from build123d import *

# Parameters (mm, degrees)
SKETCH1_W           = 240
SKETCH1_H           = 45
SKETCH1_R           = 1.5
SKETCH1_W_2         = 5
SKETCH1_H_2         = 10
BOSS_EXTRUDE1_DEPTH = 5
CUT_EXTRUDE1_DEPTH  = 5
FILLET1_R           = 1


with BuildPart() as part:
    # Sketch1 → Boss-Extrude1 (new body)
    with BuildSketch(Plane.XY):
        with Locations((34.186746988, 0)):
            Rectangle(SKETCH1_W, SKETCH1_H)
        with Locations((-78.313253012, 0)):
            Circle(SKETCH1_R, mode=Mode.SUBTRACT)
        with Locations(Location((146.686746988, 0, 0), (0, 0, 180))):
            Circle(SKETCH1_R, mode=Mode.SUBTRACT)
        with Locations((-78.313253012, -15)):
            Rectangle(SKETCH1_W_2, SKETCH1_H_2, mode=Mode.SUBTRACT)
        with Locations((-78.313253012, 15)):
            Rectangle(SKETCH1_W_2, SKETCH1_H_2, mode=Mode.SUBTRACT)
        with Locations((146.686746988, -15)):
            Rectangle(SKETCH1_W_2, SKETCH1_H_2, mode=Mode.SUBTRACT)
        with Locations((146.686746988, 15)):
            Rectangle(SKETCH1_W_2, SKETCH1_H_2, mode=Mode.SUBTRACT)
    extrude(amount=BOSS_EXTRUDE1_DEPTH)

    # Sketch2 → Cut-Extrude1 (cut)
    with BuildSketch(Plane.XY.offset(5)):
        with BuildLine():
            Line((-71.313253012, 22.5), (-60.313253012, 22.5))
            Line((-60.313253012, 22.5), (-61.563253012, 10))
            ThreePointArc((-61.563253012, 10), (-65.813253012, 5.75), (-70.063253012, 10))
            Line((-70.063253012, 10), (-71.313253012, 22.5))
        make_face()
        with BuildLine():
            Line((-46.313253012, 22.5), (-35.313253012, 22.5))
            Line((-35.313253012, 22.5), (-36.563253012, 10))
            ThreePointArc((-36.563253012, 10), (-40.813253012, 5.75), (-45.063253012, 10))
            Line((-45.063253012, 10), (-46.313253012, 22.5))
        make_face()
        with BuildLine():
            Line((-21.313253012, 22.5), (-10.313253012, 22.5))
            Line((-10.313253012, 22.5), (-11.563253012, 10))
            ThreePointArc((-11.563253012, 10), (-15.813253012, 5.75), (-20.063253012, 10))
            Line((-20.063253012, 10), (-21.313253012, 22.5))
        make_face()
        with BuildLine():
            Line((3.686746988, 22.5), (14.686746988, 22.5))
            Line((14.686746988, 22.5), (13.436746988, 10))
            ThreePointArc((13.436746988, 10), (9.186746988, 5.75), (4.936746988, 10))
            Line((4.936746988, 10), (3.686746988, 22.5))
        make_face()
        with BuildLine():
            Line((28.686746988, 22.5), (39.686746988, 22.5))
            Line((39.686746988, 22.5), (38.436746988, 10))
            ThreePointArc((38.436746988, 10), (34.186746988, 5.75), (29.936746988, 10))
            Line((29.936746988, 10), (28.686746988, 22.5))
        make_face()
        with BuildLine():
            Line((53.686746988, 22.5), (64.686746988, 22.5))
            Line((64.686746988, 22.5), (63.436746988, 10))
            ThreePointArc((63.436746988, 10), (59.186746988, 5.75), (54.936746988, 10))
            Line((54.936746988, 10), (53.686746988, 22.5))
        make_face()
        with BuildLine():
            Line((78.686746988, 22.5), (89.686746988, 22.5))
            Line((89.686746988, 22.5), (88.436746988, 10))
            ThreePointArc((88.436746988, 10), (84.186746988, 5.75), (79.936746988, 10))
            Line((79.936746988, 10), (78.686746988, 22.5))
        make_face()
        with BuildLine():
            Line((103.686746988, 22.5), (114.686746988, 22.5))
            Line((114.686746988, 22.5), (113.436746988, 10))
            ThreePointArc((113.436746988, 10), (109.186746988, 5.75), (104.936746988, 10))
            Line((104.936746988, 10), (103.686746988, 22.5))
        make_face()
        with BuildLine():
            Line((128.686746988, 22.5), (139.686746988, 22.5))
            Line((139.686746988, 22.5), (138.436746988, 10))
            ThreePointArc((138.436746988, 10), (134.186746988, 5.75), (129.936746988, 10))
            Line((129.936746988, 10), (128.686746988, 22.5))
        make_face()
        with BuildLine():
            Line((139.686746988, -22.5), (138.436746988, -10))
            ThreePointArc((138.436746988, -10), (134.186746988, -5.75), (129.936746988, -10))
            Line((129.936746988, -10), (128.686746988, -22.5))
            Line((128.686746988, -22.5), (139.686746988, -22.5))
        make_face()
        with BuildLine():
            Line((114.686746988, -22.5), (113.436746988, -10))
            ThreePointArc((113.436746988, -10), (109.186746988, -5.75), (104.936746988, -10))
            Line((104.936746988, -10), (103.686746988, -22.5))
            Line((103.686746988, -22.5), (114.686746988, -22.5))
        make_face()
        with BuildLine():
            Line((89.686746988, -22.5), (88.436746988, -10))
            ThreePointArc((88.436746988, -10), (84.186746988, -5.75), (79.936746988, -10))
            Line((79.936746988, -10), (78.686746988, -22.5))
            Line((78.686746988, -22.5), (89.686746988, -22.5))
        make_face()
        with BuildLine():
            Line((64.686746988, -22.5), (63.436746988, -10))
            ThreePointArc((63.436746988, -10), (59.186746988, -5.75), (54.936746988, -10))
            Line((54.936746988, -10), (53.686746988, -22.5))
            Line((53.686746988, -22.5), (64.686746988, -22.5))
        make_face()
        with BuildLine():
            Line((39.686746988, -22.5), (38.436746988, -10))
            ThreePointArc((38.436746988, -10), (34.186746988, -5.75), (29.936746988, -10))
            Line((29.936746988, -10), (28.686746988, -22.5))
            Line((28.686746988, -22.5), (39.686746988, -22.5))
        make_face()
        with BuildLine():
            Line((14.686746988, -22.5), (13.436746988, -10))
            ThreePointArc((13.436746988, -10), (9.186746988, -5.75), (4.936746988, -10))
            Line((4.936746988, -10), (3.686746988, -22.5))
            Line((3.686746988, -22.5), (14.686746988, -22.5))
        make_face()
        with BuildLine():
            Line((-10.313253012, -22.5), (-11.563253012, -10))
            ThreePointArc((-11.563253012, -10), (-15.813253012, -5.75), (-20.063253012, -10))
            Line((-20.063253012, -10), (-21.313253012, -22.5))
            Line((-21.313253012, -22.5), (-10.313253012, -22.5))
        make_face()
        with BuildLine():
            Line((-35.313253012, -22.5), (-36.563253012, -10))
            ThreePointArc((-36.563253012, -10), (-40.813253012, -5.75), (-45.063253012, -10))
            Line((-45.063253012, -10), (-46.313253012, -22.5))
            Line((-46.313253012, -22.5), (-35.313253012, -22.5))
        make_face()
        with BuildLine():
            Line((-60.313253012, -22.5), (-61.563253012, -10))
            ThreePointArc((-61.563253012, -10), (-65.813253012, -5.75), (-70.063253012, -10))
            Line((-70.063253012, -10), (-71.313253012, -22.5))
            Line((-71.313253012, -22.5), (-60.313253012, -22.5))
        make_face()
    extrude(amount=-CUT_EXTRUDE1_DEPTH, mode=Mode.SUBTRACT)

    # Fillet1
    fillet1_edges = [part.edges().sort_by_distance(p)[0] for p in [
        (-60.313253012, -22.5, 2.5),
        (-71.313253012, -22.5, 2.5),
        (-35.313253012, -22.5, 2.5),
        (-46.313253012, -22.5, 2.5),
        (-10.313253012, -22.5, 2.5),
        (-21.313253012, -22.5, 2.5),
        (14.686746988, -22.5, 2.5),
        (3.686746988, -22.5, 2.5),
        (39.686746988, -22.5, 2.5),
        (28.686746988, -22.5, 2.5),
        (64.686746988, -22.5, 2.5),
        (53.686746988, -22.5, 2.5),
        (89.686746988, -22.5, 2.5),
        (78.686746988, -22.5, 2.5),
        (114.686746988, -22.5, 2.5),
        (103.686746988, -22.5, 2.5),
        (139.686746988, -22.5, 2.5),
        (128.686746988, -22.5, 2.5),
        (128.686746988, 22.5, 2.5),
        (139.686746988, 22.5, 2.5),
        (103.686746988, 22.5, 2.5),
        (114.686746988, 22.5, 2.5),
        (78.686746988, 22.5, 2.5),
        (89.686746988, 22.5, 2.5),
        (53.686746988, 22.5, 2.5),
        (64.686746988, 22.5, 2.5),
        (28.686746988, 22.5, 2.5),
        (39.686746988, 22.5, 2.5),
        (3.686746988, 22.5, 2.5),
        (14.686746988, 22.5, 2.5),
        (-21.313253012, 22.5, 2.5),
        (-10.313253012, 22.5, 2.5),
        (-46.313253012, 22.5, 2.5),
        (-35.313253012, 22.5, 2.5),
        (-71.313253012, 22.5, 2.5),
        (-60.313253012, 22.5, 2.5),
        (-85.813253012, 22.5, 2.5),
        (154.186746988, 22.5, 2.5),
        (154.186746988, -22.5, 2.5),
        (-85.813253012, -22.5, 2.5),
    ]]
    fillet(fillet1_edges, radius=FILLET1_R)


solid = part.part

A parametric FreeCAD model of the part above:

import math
import FreeCAD as App
import Part
import Sketcher


def edges_at(feature, points):
    """Names of the edges that pass closest to the given points."""
    edges = feature.Shape.Edges
    near = lambda p: min(range(len(edges)), key=lambda i: edges[i].distToShape(Part.Vertex(*p))[0])
    return sorted({f"Edge{near(p) + 1}" for p in points})

doc = App.newDocument("Part")
body = doc.addObject("PartDesign::Body", "Body")

# Sketch on XY plane
sketch1 = body.newObject("Sketcher::SketchObject", "Sketch")
sketch1.AttachmentSupport = (doc.getObject("XY_Plane"), [""])
sketch1.MapMode = "FlatFace"
sketch1.addGeometry([
    Part.LineSegment(App.Vector(-85.8, 22.5, 0), App.Vector(-85.8, -22.5, 0)),  # 0
    Part.LineSegment(App.Vector(-85.8, -22.5, 0), App.Vector(154.2, -22.5, 0)),  # 1
    Part.LineSegment(App.Vector(154.2, -22.5, 0), App.Vector(154.2, 22.5, 0)),  # 2
    Part.LineSegment(App.Vector(154.2, 22.5, 0), App.Vector(-85.8, 22.5, 0)),  # 3
    Part.LineSegment(App.Vector(-75.8, -20, 0), App.Vector(-80.8, -20, 0)),  # 4
    Part.LineSegment(App.Vector(-80.8, -20, 0), App.Vector(-80.8, -10, 0)),  # 5
    Part.LineSegment(App.Vector(-80.8, -10, 0), App.Vector(-75.8, -10, 0)),  # 6
    Part.LineSegment(App.Vector(-75.8, -10, 0), App.Vector(-75.8, -20, 0)),  # 7
    Part.LineSegment(App.Vector(149.2, -20, 0), App.Vector(144.2, -20, 0)),  # 8
    Part.LineSegment(App.Vector(144.2, -20, 0), App.Vector(144.2, -10, 0)),  # 9
    Part.LineSegment(App.Vector(144.2, -10, 0), App.Vector(149.2, -10, 0)),  # 10
    Part.LineSegment(App.Vector(149.2, -10, 0), App.Vector(149.2, -20, 0)),  # 11
    Part.Circle(App.Vector(-78.3, 0, 0), App.Vector(0, 0, 1), 1.5),  # 12
    Part.LineSegment(App.Vector(-75.8, 10, 0), App.Vector(-80.8, 10, 0)),  # 13
    Part.LineSegment(App.Vector(-80.8, 10, 0), App.Vector(-80.8, 20, 0)),  # 14
    Part.LineSegment(App.Vector(-80.8, 20, 0), App.Vector(-75.8, 20, 0)),  # 15
    Part.LineSegment(App.Vector(-75.8, 20, 0), App.Vector(-75.8, 10, 0)),  # 16
    Part.Circle(App.Vector(146.7, 0, 0), App.Vector(0, 0, 1), 1.5),  # 17
    Part.LineSegment(App.Vector(149.2, 10, 0), App.Vector(144.2, 10, 0)),  # 18
    Part.LineSegment(App.Vector(144.2, 10, 0), App.Vector(144.2, 20, 0)),  # 19
    Part.LineSegment(App.Vector(144.2, 20, 0), App.Vector(149.2, 20, 0)),  # 20
    Part.LineSegment(App.Vector(149.2, 20, 0), App.Vector(149.2, 10, 0)),  # 21
], False)
sketch1.addConstraint([
    Sketcher.Constraint("Coincident", 0, 2, 1, 1),
    Sketcher.Constraint("Coincident", 1, 2, 2, 1),
    Sketcher.Constraint("Coincident", 2, 2, 3, 1),
    Sketcher.Constraint("Coincident", 3, 2, 0, 1),
    Sketcher.Constraint("Coincident", 4, 2, 5, 1),
    Sketcher.Constraint("Coincident", 5, 2, 6, 1),
    Sketcher.Constraint("Coincident", 6, 2, 7, 1),
    Sketcher.Constraint("Coincident", 7, 2, 4, 1),
    Sketcher.Constraint("Coincident", 8, 2, 9, 1),
    Sketcher.Constraint("Coincident", 9, 2, 10, 1),
    Sketcher.Constraint("Coincident", 10, 2, 11, 1),
    Sketcher.Constraint("Coincident", 11, 2, 8, 1),
    Sketcher.Constraint("Coincident", 13, 2, 14, 1),
    Sketcher.Constraint("Coincident", 14, 2, 15, 1),
    Sketcher.Constraint("Coincident", 15, 2, 16, 1),
    Sketcher.Constraint("Coincident", 16, 2, 13, 1),
    Sketcher.Constraint("Coincident", 18, 2, 19, 1),
    Sketcher.Constraint("Coincident", 19, 2, 20, 1),
    Sketcher.Constraint("Coincident", 20, 2, 21, 1),
    Sketcher.Constraint("Coincident", 21, 2, 18, 1),
    Sketcher.Constraint("Vertical", 0),
    Sketcher.Constraint("Horizontal", 1),
    Sketcher.Constraint("Vertical", 2),
    Sketcher.Constraint("Horizontal", 3),
    Sketcher.Constraint("Horizontal", 4),
    Sketcher.Constraint("Vertical", 5),
    Sketcher.Constraint("Horizontal", 6),
    Sketcher.Constraint("Vertical", 7),
    Sketcher.Constraint("Horizontal", 8),
    Sketcher.Constraint("Vertical", 9),
    Sketcher.Constraint("Horizontal", 10),
    Sketcher.Constraint("Vertical", 11),
    Sketcher.Constraint("Horizontal", 13),
    Sketcher.Constraint("Vertical", 14),
    Sketcher.Constraint("Horizontal", 15),
    Sketcher.Constraint("Vertical", 16),
    Sketcher.Constraint("Horizontal", 18),
    Sketcher.Constraint("Vertical", 19),
    Sketcher.Constraint("Horizontal", 20),
    Sketcher.Constraint("Vertical", 21),
    Sketcher.Constraint("Equal", 12, 17),
    Sketcher.Constraint("Symmetric", 5, 2, 13, 2, -1),
    Sketcher.Constraint("Symmetric", 7, 2, 15, 2, -1),
    Sketcher.Constraint("Symmetric", 9, 2, 18, 2, -1),
    Sketcher.Constraint("Symmetric", 11, 2, 20, 2, -1),
    Sketcher.Constraint("PointOnObject", 12, 3, -1),
    Sketcher.Constraint("PointOnObject", 17, 3, -1),
    Sketcher.Constraint("Horizontal", 7, 2, 8, 2),
    Sketcher.Constraint("Horizontal", 6, 2, 9, 2),
    Sketcher.Constraint("Equal", 6, 8),
    Sketcher.Constraint("Diameter", 12, 3.0),
    Sketcher.Constraint("DistanceX", 1, 1, 1, 2, 240.0),
    Sketcher.Constraint("DistanceX", 4, 2, 4, 1, 5.0),
    Sketcher.Constraint("DistanceY", 0, 2, 0, 1, 45.0),
    Sketcher.Constraint("DistanceY", 5, 1, 5, 2, 10.0),
    Sketcher.Constraint("DistanceY", 4, 2, -1, 1, 20.0),
    Sketcher.Constraint("DistanceX", 12, 3, 17, 3, 225.0),
    Sketcher.Constraint("DistanceX", 0, 2, 4, 2, 5.0),
    Sketcher.Constraint("DistanceX", 8, 2, 1, 2, 10.0),
    Sketcher.Constraint("DistanceY", 0, 2, -1, 1, 22.5),
    Sketcher.Constraint("DistanceX", 0, 2, 12, 3, 7.5),
    Sketcher.Constraint("DistanceX", 12, 3, -1, 1, 78.313253),
])
pad1 = body.newObject("PartDesign::Pad", "Pad")
pad1.Profile = sketch1
pad1.Length = 5

# Sketch on XY plane
sketch2 = body.newObject("Sketcher::SketchObject", "Sketch001")
sketch2.AttachmentSupport = (doc.getObject("XY_Plane"), [""])
sketch2.MapMode = "FlatFace"
sketch2.AttachmentOffset = App.Placement(App.Vector(0, 0, 5), App.Rotation())
sketch2.addGeometry([
    Part.LineSegment(App.Vector(-60.3, 22.5, 0), App.Vector(-71.3, 22.5, 0)),  # 0
    Part.LineSegment(App.Vector(-71.3, 22.5, 0), App.Vector(-70.1, 10, 0)),  # 1
    Part.ArcOfCircle(Part.Circle(App.Vector(-65.8, 10, 0), App.Vector(0, 0, 1), 4.2), math.radians(180), math.radians(360)),  # 2
    Part.LineSegment(App.Vector(-61.6, 10, 0), App.Vector(-60.3, 22.5, 0)),  # 3
    Part.LineSegment(App.Vector(-35.3, 22.5, 0), App.Vector(-46.3, 22.5, 0)),  # 4
    Part.LineSegment(App.Vector(-46.3, 22.5, 0), App.Vector(-45.1, 10, 0)),  # 5
    Part.ArcOfCircle(Part.Circle(App.Vector(-40.8, 10, 0), App.Vector(0, 0, 1), 4.2), math.radians(180), math.radians(360)),  # 6
    Part.LineSegment(App.Vector(-36.6, 10, 0), App.Vector(-35.3, 22.5, 0)),  # 7
    Part.LineSegment(App.Vector(-10.3, 22.5, 0), App.Vector(-21.3, 22.5, 0)),  # 8
    Part.LineSegment(App.Vector(-21.3, 22.5, 0), App.Vector(-20.1, 10, 0)),  # 9
    Part.ArcOfCircle(Part.Circle(App.Vector(-15.8, 10, 0), App.Vector(0, 0, 1), 4.2), math.radians(180), math.radians(360)),  # 10
    Part.LineSegment(App.Vector(-11.6, 10, 0), App.Vector(-10.3, 22.5, 0)),  # 11
    Part.LineSegment(App.Vector(14.7, 22.5, 0), App.Vector(3.7, 22.5, 0)),  # 12
    Part.LineSegment(App.Vector(3.7, 22.5, 0), App.Vector(4.9, 10, 0)),  # 13
    Part.ArcOfCircle(Part.Circle(App.Vector(9.2, 10, 0), App.Vector(0, 0, 1), 4.2), math.radians(180), math.radians(360)),  # 14
    Part.LineSegment(App.Vector(13.4, 10, 0), App.Vector(14.7, 22.5, 0)),  # 15
    Part.LineSegment(App.Vector(39.7, 22.5, 0), App.Vector(28.7, 22.5, 0)),  # 16
    Part.LineSegment(App.Vector(28.7, 22.5, 0), App.Vector(29.9, 10, 0)),  # 17
    Part.ArcOfCircle(Part.Circle(App.Vector(34.2, 10, 0), App.Vector(0, 0, 1), 4.2), math.radians(180), math.radians(360)),  # 18
    Part.LineSegment(App.Vector(38.4, 10, 0), App.Vector(39.7, 22.5, 0)),  # 19
    Part.LineSegment(App.Vector(64.7, 22.5, 0), App.Vector(53.7, 22.5, 0)),  # 20
    Part.LineSegment(App.Vector(53.7, 22.5, 0), App.Vector(54.9, 10, 0)),  # 21
    Part.ArcOfCircle(Part.Circle(App.Vector(59.2, 10, 0), App.Vector(0, 0, 1), 4.2), math.radians(180), math.radians(360)),  # 22
    Part.LineSegment(App.Vector(63.4, 10, 0), App.Vector(64.7, 22.5, 0)),  # 23
    Part.LineSegment(App.Vector(89.7, 22.5, 0), App.Vector(78.7, 22.5, 0)),  # 24
    Part.LineSegment(App.Vector(78.7, 22.5, 0), App.Vector(79.9, 10, 0)),  # 25
    Part.ArcOfCircle(Part.Circle(App.Vector(84.2, 10, 0), App.Vector(0, 0, 1), 4.2), math.radians(180), math.radians(360)),  # 26
    Part.LineSegment(App.Vector(88.4, 10, 0), App.Vector(89.7, 22.5, 0)),  # 27
    Part.LineSegment(App.Vector(114.7, 22.5, 0), App.Vector(103.7, 22.5, 0)),  # 28
    Part.LineSegment(App.Vector(103.7, 22.5, 0), App.Vector(104.9, 10, 0)),  # 29
    Part.ArcOfCircle(Part.Circle(App.Vector(109.2, 10, 0), App.Vector(0, 0, 1), 4.2), math.radians(180), math.radians(360)),  # 30
    Part.LineSegment(App.Vector(113.4, 10, 0), App.Vector(114.7, 22.5, 0)),  # 31
    Part.LineSegment(App.Vector(139.7, 22.5, 0), App.Vector(128.7, 22.5, 0)),  # 32
    Part.LineSegment(App.Vector(128.7, 22.5, 0), App.Vector(129.9, 10, 0)),  # 33
    Part.ArcOfCircle(Part.Circle(App.Vector(134.2, 10, 0), App.Vector(0, 0, 1), 4.2), math.radians(180), math.radians(360)),  # 34
    Part.LineSegment(App.Vector(138.4, 10, 0), App.Vector(139.7, 22.5, 0)),  # 35
    Part.LineSegment(App.Vector(139.7, -22.5, 0), App.Vector(138.4, -10, 0)),  # 36
    Part.ArcOfCircle(Part.Circle(App.Vector(134.2, -10, 0), App.Vector(0, 0, 1), 4.2), math.radians(0), math.radians(180)),  # 37
    Part.LineSegment(App.Vector(129.9, -10, 0), App.Vector(128.7, -22.5, 0)),  # 38
    Part.LineSegment(App.Vector(128.7, -22.5, 0), App.Vector(139.7, -22.5, 0)),  # 39
    Part.LineSegment(App.Vector(114.7, -22.5, 0), App.Vector(113.4, -10, 0)),  # 40
    Part.ArcOfCircle(Part.Circle(App.Vector(109.2, -10, 0), App.Vector(0, 0, 1), 4.2), math.radians(0), math.radians(180)),  # 41
    Part.LineSegment(App.Vector(104.9, -10, 0), App.Vector(103.7, -22.5, 0)),  # 42
    Part.LineSegment(App.Vector(103.7, -22.5, 0), App.Vector(114.7, -22.5, 0)),  # 43
    Part.LineSegment(App.Vector(89.7, -22.5, 0), App.Vector(88.4, -10, 0)),  # 44
    Part.ArcOfCircle(Part.Circle(App.Vector(84.2, -10, 0), App.Vector(0, 0, 1), 4.2), math.radians(0), math.radians(180)),  # 45
    Part.LineSegment(App.Vector(79.9, -10, 0), App.Vector(78.7, -22.5, 0)),  # 46
    Part.LineSegment(App.Vector(78.7, -22.5, 0), App.Vector(89.7, -22.5, 0)),  # 47
    Part.LineSegment(App.Vector(64.7, -22.5, 0), App.Vector(63.4, -10, 0)),  # 48
    Part.ArcOfCircle(Part.Circle(App.Vector(59.2, -10, 0), App.Vector(0, 0, 1), 4.2), math.radians(0), math.radians(180)),  # 49
    Part.LineSegment(App.Vector(54.9, -10, 0), App.Vector(53.7, -22.5, 0)),  # 50
    Part.LineSegment(App.Vector(53.7, -22.5, 0), App.Vector(64.7, -22.5, 0)),  # 51
    Part.LineSegment(App.Vector(39.7, -22.5, 0), App.Vector(38.4, -10, 0)),  # 52
    Part.ArcOfCircle(Part.Circle(App.Vector(34.2, -10, 0), App.Vector(0, 0, 1), 4.2), math.radians(0), math.radians(180)),  # 53
    Part.LineSegment(App.Vector(29.9, -10, 0), App.Vector(28.7, -22.5, 0)),  # 54
    Part.LineSegment(App.Vector(28.7, -22.5, 0), App.Vector(39.7, -22.5, 0)),  # 55
    Part.LineSegment(App.Vector(14.7, -22.5, 0), App.Vector(13.4, -10, 0)),  # 56
    Part.ArcOfCircle(Part.Circle(App.Vector(9.2, -10, 0), App.Vector(0, 0, 1), 4.2), math.radians(0), math.radians(180)),  # 57
    Part.LineSegment(App.Vector(4.9, -10, 0), App.Vector(3.7, -22.5, 0)),  # 58
    Part.LineSegment(App.Vector(3.7, -22.5, 0), App.Vector(14.7, -22.5, 0)),  # 59
    Part.LineSegment(App.Vector(-10.3, -22.5, 0), App.Vector(-11.6, -10, 0)),  # 60
    Part.ArcOfCircle(Part.Circle(App.Vector(-15.8, -10, 0), App.Vector(0, 0, 1), 4.2), math.radians(0), math.radians(180)),  # 61
    Part.LineSegment(App.Vector(-20.1, -10, 0), App.Vector(-21.3, -22.5, 0)),  # 62
    Part.LineSegment(App.Vector(-21.3, -22.5, 0), App.Vector(-10.3, -22.5, 0)),  # 63
    Part.LineSegment(App.Vector(-35.3, -22.5, 0), App.Vector(-36.6, -10, 0)),  # 64
    Part.ArcOfCircle(Part.Circle(App.Vector(-40.8, -10, 0), App.Vector(0, 0, 1), 4.2), math.radians(0), math.radians(180)),  # 65
    Part.LineSegment(App.Vector(-45.1, -10, 0), App.Vector(-46.3, -22.5, 0)),  # 66
    Part.LineSegment(App.Vector(-46.3, -22.5, 0), App.Vector(-35.3, -22.5, 0)),  # 67
    Part.LineSegment(App.Vector(-60.3, -22.5, 0), App.Vector(-61.6, -10, 0)),  # 68
    Part.ArcOfCircle(Part.Circle(App.Vector(-65.8, -10, 0), App.Vector(0, 0, 1), 4.2), math.radians(0), math.radians(180)),  # 69
    Part.LineSegment(App.Vector(-70.1, -10, 0), App.Vector(-71.3, -22.5, 0)),  # 70
    Part.LineSegment(App.Vector(-71.3, -22.5, 0), App.Vector(-60.3, -22.5, 0)),  # 71
], False)
sketch2.addConstraint([
    Sketcher.Constraint("Coincident", 0, 2, 1, 1),
    Sketcher.Constraint("Coincident", 1, 2, 2, 1),
    Sketcher.Constraint("Coincident", 2, 2, 3, 1),
    Sketcher.Constraint("Coincident", 3, 2, 0, 1),
    Sketcher.Constraint("Coincident", 4, 2, 5, 1),
    Sketcher.Constraint("Coincident", 5, 2, 6, 1),
    Sketcher.Constraint("Coincident", 6, 2, 7, 1),
    Sketcher.Constraint("Coincident", 7, 2, 4, 1),
    Sketcher.Constraint("Coincident", 8, 2, 9, 1),
    Sketcher.Constraint("Coincident", 9, 2, 10, 1),
    Sketcher.Constraint("Coincident", 10, 2, 11, 1),
    Sketcher.Constraint("Coincident", 11, 2, 8, 1),
    Sketcher.Constraint("Coincident", 12, 2, 13, 1),
    Sketcher.Constraint("Coincident", 13, 2, 14, 1),
    Sketcher.Constraint("Coincident", 14, 2, 15, 1),
    Sketcher.Constraint("Coincident", 15, 2, 12, 1),
    Sketcher.Constraint("Coincident", 16, 2, 17, 1),
    Sketcher.Constraint("Coincident", 17, 2, 18, 1),
    Sketcher.Constraint("Coincident", 18, 2, 19, 1),
    Sketcher.Constraint("Coincident", 19, 2, 16, 1),
    Sketcher.Constraint("Coincident", 20, 2, 21, 1),
    Sketcher.Constraint("Coincident", 21, 2, 22, 1),
    Sketcher.Constraint("Coincident", 22, 2, 23, 1),
    Sketcher.Constraint("Coincident", 23, 2, 20, 1),
    Sketcher.Constraint("Coincident", 24, 2, 25, 1),
    Sketcher.Constraint("Coincident", 25, 2, 26, 1),
    Sketcher.Constraint("Coincident", 26, 2, 27, 1),
    Sketcher.Constraint("Coincident", 27, 2, 24, 1),
    Sketcher.Constraint("Coincident", 28, 2, 29, 1),
    Sketcher.Constraint("Coincident", 29, 2, 30, 1),
    Sketcher.Constraint("Coincident", 30, 2, 31, 1),
    Sketcher.Constraint("Coincident", 31, 2, 28, 1),
    Sketcher.Constraint("Coincident", 32, 2, 33, 1),
    Sketcher.Constraint("Coincident", 33, 2, 34, 1),
    Sketcher.Constraint("Coincident", 34, 2, 35, 1),
    Sketcher.Constraint("Coincident", 35, 2, 32, 1),
    Sketcher.Constraint("Coincident", 36, 2, 37, 1),
    Sketcher.Constraint("Coincident", 37, 2, 38, 1),
    Sketcher.Constraint("Coincident", 38, 2, 39, 1),
    Sketcher.Constraint("Coincident", 39, 2, 36, 1),
    Sketcher.Constraint("Coincident", 40, 2, 41, 1),
    Sketcher.Constraint("Coincident", 41, 2, 42, 1),
    Sketcher.Constraint("Coincident", 42, 2, 43, 1),
    Sketcher.Constraint("Coincident", 43, 2, 40, 1),
    Sketcher.Constraint("Coincident", 44, 2, 45, 1),
    Sketcher.Constraint("Coincident", 45, 2, 46, 1),
    Sketcher.Constraint("Coincident", 46, 2, 47, 1),
    Sketcher.Constraint("Coincident", 47, 2, 44, 1),
    Sketcher.Constraint("Coincident", 48, 2, 49, 1),
    Sketcher.Constraint("Coincident", 49, 2, 50, 1),
    Sketcher.Constraint("Coincident", 50, 2, 51, 1),
    Sketcher.Constraint("Coincident", 51, 2, 48, 1),
    Sketcher.Constraint("Coincident", 52, 2, 53, 1),
    Sketcher.Constraint("Coincident", 53, 2, 54, 1),
    Sketcher.Constraint("Coincident", 54, 2, 55, 1),
    Sketcher.Constraint("Coincident", 55, 2, 52, 1),
    Sketcher.Constraint("Coincident", 56, 2, 57, 1),
    Sketcher.Constraint("Coincident", 57, 2, 58, 1),
    Sketcher.Constraint("Coincident", 58, 2, 59, 1),
    Sketcher.Constraint("Coincident", 59, 2, 56, 1),
    Sketcher.Constraint("Coincident", 60, 2, 61, 1),
    Sketcher.Constraint("Coincident", 61, 2, 62, 1),
    Sketcher.Constraint("Coincident", 62, 2, 63, 1),
    Sketcher.Constraint("Coincident", 63, 2, 60, 1),
    Sketcher.Constraint("Coincident", 64, 2, 65, 1),
    Sketcher.Constraint("Coincident", 65, 2, 66, 1),
    Sketcher.Constraint("Coincident", 66, 2, 67, 1),
    Sketcher.Constraint("Coincident", 67, 2, 64, 1),
    Sketcher.Constraint("Coincident", 68, 2, 69, 1),
    Sketcher.Constraint("Coincident", 69, 2, 70, 1),
    Sketcher.Constraint("Coincident", 70, 2, 71, 1),
    Sketcher.Constraint("Coincident", 71, 2, 68, 1),
    Sketcher.Constraint("Horizontal", 0),
    Sketcher.Constraint("Horizontal", 4),
    Sketcher.Constraint("Horizontal", 8),
    Sketcher.Constraint("Horizontal", 12),
    Sketcher.Constraint("Horizontal", 16),
    Sketcher.Constraint("Horizontal", 20),
    Sketcher.Constraint("Horizontal", 24),
    Sketcher.Constraint("Horizontal", 28),
    Sketcher.Constraint("Horizontal", 32),
    Sketcher.Constraint("Horizontal", 39),
    Sketcher.Constraint("Horizontal", 43),
    Sketcher.Constraint("Horizontal", 47),
    Sketcher.Constraint("Horizontal", 51),
    Sketcher.Constraint("Horizontal", 55),
    Sketcher.Constraint("Horizontal", 59),
    Sketcher.Constraint("Horizontal", 63),
    Sketcher.Constraint("Horizontal", 67),
    Sketcher.Constraint("Horizontal", 71),
    Sketcher.Constraint("Equal", 2, 6),
    Sketcher.Constraint("Equal", 6, 10),
    Sketcher.Constraint("Equal", 10, 14),
    Sketcher.Constraint("Equal", 14, 18),
    Sketcher.Constraint("Equal", 18, 22),
    Sketcher.Constraint("Equal", 22, 26),
    Sketcher.Constraint("Equal", 26, 30),
    Sketcher.Constraint("Equal", 30, 34),
    Sketcher.Constraint("Equal", 34, 37),
    Sketcher.Constraint("Equal", 37, 41),
    Sketcher.Constraint("Equal", 41, 45),
    Sketcher.Constraint("Equal", 45, 49),
    Sketcher.Constraint("Equal", 49, 53),
    Sketcher.Constraint("Equal", 53, 57),
    Sketcher.Constraint("Equal", 57, 61),
    Sketcher.Constraint("Equal", 61, 65),
    Sketcher.Constraint("Equal", 65, 69),
    Sketcher.Constraint("Symmetric", 34, 3, 37, 3, -1),
    Sketcher.Constraint("Symmetric", 30, 3, 41, 3, -1),
    Sketcher.Constraint("Symmetric", 26, 3, 45, 3, -1),
    Sketcher.Constraint("Symmetric", 22, 3, 49, 3, -1),
    Sketcher.Constraint("Symmetric", 18, 3, 53, 3, -1),
    Sketcher.Constraint("Symmetric", 14, 3, 57, 3, -1),
    Sketcher.Constraint("Symmetric", 10, 3, 61, 3, -1),
    Sketcher.Constraint("Symmetric", 6, 3, 65, 3, -1),
    Sketcher.Constraint("Symmetric", 2, 3, 69, 3, -1),
    Sketcher.Constraint("Symmetric", 32, 2, 38, 2, -1),
    Sketcher.Constraint("Symmetric", 28, 2, 42, 2, -1),
    Sketcher.Constraint("Symmetric", 24, 2, 46, 2, -1),
    Sketcher.Constraint("Symmetric", 20, 2, 50, 2, -1),
    Sketcher.Constraint("Symmetric", 16, 2, 54, 2, -1),
    Sketcher.Constraint("Symmetric", 12, 2, 58, 2, -1),
    Sketcher.Constraint("Symmetric", 8, 2, 62, 2, -1),
    Sketcher.Constraint("Symmetric", 4, 2, 66, 2, -1),
    Sketcher.Constraint("Symmetric", 0, 2, 70, 2, -1),
    Sketcher.Constraint("Parallel", 1, 5),
    Sketcher.Constraint("Parallel", 3, 7),
    Sketcher.Constraint("Parallel", 5, 9),
    Sketcher.Constraint("Parallel", 7, 11),
    Sketcher.Constraint("Parallel", 9, 13),
    Sketcher.Constraint("Parallel", 11, 15),
    Sketcher.Constraint("Parallel", 13, 17),
    Sketcher.Constraint("Parallel", 15, 19),
    Sketcher.Constraint("Parallel", 17, 21),
    Sketcher.Constraint("Parallel", 19, 23),
    Sketcher.Constraint("Parallel", 21, 25),
    Sketcher.Constraint("Parallel", 23, 27),
    Sketcher.Constraint("Parallel", 25, 29),
    Sketcher.Constraint("Parallel", 27, 31),
    Sketcher.Constraint("Parallel", 29, 33),
    Sketcher.Constraint("Parallel", 31, 35),
    Sketcher.Constraint("Parallel", 33, 36),
    Sketcher.Constraint("Parallel", 35, 38),
    Sketcher.Constraint("Parallel", 36, 40),
    Sketcher.Constraint("Parallel", 38, 42),
    Sketcher.Constraint("Parallel", 40, 44),
    Sketcher.Constraint("Parallel", 42, 46),
    Sketcher.Constraint("Parallel", 44, 48),
    Sketcher.Constraint("Parallel", 46, 50),
    Sketcher.Constraint("Parallel", 48, 52),
    Sketcher.Constraint("Parallel", 50, 54),
    Sketcher.Constraint("Parallel", 52, 56),
    Sketcher.Constraint("Parallel", 54, 58),
    Sketcher.Constraint("Parallel", 56, 60),
    Sketcher.Constraint("Parallel", 58, 62),
    Sketcher.Constraint("Parallel", 60, 64),
    Sketcher.Constraint("Parallel", 62, 66),
    Sketcher.Constraint("Parallel", 64, 68),
    Sketcher.Constraint("Parallel", 66, 70),
    Sketcher.Constraint("Horizontal", 2, 3, 6, 3),
    Sketcher.Constraint("Horizontal", 6, 3, 10, 3),
    Sketcher.Constraint("Horizontal", 10, 3, 14, 3),
    Sketcher.Constraint("Horizontal", 14, 3, 18, 3),
    Sketcher.Constraint("Horizontal", 18, 3, 22, 3),
    Sketcher.Constraint("Horizontal", 22, 3, 26, 3),
    Sketcher.Constraint("Horizontal", 26, 3, 30, 3),
    Sketcher.Constraint("Horizontal", 30, 3, 34, 3),
    Sketcher.Constraint("Horizontal", 34, 3, 1, 2),
    Sketcher.Constraint("Horizontal", 1, 2, 2, 2),
    Sketcher.Constraint("Horizontal", 3, 2, 4, 2),
    Sketcher.Constraint("Horizontal", 2, 2, 5, 2),
    Sketcher.Constraint("Horizontal", 5, 2, 6, 2),
    Sketcher.Constraint("Horizontal", 7, 2, 8, 2),
    Sketcher.Constraint("Horizontal", 6, 2, 9, 2),
    Sketcher.Constraint("Horizontal", 9, 2, 10, 2),
    Sketcher.Constraint("Horizontal", 11, 2, 12, 2),
    Sketcher.Constraint("Horizontal", 10, 2, 13, 2),
    Sketcher.Constraint("Horizontal", 13, 2, 14, 2),
    Sketcher.Constraint("Horizontal", 15, 2, 16, 2),
    Sketcher.Constraint("Horizontal", 14, 2, 17, 2),
    Sketcher.Constraint("Horizontal", 17, 2, 18, 2),
    Sketcher.Constraint("Horizontal", 19, 2, 20, 2),
    Sketcher.Constraint("Horizontal", 18, 2, 21, 2),
    Sketcher.Constraint("Horizontal", 21, 2, 22, 2),
    Sketcher.Constraint("Horizontal", 23, 2, 24, 2),
    Sketcher.Constraint("Horizontal", 22, 2, 25, 2),
    Sketcher.Constraint("Horizontal", 25, 2, 26, 2),
    Sketcher.Constraint("Horizontal", 27, 2, 28, 2),
    Sketcher.Constraint("Horizontal", 26, 2, 29, 2),
    Sketcher.Constraint("Horizontal", 29, 2, 30, 2),
    Sketcher.Constraint("Horizontal", 31, 2, 32, 2),
    Sketcher.Constraint("Horizontal", 30, 2, 33, 2),
    Sketcher.Constraint("Horizontal", 33, 2, 34, 2),
    Sketcher.Constraint("Horizontal", 69, 3, 36, 2),
    Sketcher.Constraint("Horizontal", 36, 2, 37, 2),
    Sketcher.Constraint("Horizontal", 37, 2, 40, 2),
    Sketcher.Constraint("Horizontal", 41, 2, 44, 2),
    Sketcher.Constraint("Horizontal", 45, 2, 48, 2),
    Sketcher.Constraint("Horizontal", 49, 2, 52, 2),
    Sketcher.Constraint("Horizontal", 53, 2, 56, 2),
    Sketcher.Constraint("Horizontal", 57, 2, 60, 2),
    Sketcher.Constraint("Horizontal", 61, 2, 64, 2),
    Sketcher.Constraint("Horizontal", 65, 2, 68, 2),
    Sketcher.Constraint("DistanceX", 0, 2, 0, 1, 11.0),
    Sketcher.Constraint("Radius", 2, 4.25),
    Sketcher.Constraint("DistanceY", -1, 1, 2, 3, 10.0),
    Sketcher.Constraint("DistanceY", -1, 1, 0, 2, 22.5),
    Sketcher.Constraint("DistanceX", 2, 3, -1, 1, 65.813253),
    Sketcher.Constraint("DistanceX", 6, 3, -1, 1, 40.813253),
    Sketcher.Constraint("DistanceX", 10, 3, -1, 1, 15.813253),
    Sketcher.Constraint("DistanceX", -1, 1, 14, 3, 9.186747),
    Sketcher.Constraint("DistanceX", -1, 1, 18, 3, 34.186747),
    Sketcher.Constraint("DistanceX", -1, 1, 22, 3, 59.186747),
    Sketcher.Constraint("DistanceX", -1, 1, 26, 3, 84.186747),
    Sketcher.Constraint("DistanceX", -1, 1, 30, 3, 109.186747),
    Sketcher.Constraint("DistanceX", -1, 1, 34, 3, 134.186747),
])
pocket1 = body.newObject("PartDesign::Pocket", "Pocket")
pocket1.Profile = sketch2
pocket1.Length = 5
doc.recompute()

fillet = body.newObject("PartDesign::Fillet", "Fillet")
fillet.Base = (pocket1, edges_at(pocket1, [
    (-60.313, -22.5, 2.5),
    (-71.313, -22.5, 2.5),
    (-35.313, -22.5, 2.5),
    (-46.313, -22.5, 2.5),
    (-10.313, -22.5, 2.5),
    (-21.313, -22.5, 2.5),
    (14.687, -22.5, 2.5),
    (3.687, -22.5, 2.5),
    (39.687, -22.5, 2.5),
    (28.687, -22.5, 2.5),
    (64.687, -22.5, 2.5),
    (53.687, -22.5, 2.5),
    (89.687, -22.5, 2.5),
    (78.687, -22.5, 2.5),
    (114.687, -22.5, 2.5),
    (103.687, -22.5, 2.5),
    (139.687, -22.5, 2.5),
    (128.687, -22.5, 2.5),
    (128.687, 22.5, 2.5),
    (139.687, 22.5, 2.5),
    (103.687, 22.5, 2.5),
    (114.687, 22.5, 2.5),
    (78.687, 22.5, 2.5),
    (89.687, 22.5, 2.5),
    (53.687, 22.5, 2.5),
    (64.687, 22.5, 2.5),
    (28.687, 22.5, 2.5),
    (39.687, 22.5, 2.5),
    (3.687, 22.5, 2.5),
    (14.687, 22.5, 2.5),
    (-21.313, 22.5, 2.5),
    (-10.313, 22.5, 2.5),
    (-46.313, 22.5, 2.5),
    (-35.313, 22.5, 2.5),
    (-71.313, 22.5, 2.5),
    (-60.313, 22.5, 2.5),
    (-85.813, 22.5, 2.5),
    (154.187, 22.5, 2.5),
    (154.187, -22.5, 2.5),
    (-85.813, -22.5, 2.5),
]))
fillet.Radius = 1

doc.recompute()
